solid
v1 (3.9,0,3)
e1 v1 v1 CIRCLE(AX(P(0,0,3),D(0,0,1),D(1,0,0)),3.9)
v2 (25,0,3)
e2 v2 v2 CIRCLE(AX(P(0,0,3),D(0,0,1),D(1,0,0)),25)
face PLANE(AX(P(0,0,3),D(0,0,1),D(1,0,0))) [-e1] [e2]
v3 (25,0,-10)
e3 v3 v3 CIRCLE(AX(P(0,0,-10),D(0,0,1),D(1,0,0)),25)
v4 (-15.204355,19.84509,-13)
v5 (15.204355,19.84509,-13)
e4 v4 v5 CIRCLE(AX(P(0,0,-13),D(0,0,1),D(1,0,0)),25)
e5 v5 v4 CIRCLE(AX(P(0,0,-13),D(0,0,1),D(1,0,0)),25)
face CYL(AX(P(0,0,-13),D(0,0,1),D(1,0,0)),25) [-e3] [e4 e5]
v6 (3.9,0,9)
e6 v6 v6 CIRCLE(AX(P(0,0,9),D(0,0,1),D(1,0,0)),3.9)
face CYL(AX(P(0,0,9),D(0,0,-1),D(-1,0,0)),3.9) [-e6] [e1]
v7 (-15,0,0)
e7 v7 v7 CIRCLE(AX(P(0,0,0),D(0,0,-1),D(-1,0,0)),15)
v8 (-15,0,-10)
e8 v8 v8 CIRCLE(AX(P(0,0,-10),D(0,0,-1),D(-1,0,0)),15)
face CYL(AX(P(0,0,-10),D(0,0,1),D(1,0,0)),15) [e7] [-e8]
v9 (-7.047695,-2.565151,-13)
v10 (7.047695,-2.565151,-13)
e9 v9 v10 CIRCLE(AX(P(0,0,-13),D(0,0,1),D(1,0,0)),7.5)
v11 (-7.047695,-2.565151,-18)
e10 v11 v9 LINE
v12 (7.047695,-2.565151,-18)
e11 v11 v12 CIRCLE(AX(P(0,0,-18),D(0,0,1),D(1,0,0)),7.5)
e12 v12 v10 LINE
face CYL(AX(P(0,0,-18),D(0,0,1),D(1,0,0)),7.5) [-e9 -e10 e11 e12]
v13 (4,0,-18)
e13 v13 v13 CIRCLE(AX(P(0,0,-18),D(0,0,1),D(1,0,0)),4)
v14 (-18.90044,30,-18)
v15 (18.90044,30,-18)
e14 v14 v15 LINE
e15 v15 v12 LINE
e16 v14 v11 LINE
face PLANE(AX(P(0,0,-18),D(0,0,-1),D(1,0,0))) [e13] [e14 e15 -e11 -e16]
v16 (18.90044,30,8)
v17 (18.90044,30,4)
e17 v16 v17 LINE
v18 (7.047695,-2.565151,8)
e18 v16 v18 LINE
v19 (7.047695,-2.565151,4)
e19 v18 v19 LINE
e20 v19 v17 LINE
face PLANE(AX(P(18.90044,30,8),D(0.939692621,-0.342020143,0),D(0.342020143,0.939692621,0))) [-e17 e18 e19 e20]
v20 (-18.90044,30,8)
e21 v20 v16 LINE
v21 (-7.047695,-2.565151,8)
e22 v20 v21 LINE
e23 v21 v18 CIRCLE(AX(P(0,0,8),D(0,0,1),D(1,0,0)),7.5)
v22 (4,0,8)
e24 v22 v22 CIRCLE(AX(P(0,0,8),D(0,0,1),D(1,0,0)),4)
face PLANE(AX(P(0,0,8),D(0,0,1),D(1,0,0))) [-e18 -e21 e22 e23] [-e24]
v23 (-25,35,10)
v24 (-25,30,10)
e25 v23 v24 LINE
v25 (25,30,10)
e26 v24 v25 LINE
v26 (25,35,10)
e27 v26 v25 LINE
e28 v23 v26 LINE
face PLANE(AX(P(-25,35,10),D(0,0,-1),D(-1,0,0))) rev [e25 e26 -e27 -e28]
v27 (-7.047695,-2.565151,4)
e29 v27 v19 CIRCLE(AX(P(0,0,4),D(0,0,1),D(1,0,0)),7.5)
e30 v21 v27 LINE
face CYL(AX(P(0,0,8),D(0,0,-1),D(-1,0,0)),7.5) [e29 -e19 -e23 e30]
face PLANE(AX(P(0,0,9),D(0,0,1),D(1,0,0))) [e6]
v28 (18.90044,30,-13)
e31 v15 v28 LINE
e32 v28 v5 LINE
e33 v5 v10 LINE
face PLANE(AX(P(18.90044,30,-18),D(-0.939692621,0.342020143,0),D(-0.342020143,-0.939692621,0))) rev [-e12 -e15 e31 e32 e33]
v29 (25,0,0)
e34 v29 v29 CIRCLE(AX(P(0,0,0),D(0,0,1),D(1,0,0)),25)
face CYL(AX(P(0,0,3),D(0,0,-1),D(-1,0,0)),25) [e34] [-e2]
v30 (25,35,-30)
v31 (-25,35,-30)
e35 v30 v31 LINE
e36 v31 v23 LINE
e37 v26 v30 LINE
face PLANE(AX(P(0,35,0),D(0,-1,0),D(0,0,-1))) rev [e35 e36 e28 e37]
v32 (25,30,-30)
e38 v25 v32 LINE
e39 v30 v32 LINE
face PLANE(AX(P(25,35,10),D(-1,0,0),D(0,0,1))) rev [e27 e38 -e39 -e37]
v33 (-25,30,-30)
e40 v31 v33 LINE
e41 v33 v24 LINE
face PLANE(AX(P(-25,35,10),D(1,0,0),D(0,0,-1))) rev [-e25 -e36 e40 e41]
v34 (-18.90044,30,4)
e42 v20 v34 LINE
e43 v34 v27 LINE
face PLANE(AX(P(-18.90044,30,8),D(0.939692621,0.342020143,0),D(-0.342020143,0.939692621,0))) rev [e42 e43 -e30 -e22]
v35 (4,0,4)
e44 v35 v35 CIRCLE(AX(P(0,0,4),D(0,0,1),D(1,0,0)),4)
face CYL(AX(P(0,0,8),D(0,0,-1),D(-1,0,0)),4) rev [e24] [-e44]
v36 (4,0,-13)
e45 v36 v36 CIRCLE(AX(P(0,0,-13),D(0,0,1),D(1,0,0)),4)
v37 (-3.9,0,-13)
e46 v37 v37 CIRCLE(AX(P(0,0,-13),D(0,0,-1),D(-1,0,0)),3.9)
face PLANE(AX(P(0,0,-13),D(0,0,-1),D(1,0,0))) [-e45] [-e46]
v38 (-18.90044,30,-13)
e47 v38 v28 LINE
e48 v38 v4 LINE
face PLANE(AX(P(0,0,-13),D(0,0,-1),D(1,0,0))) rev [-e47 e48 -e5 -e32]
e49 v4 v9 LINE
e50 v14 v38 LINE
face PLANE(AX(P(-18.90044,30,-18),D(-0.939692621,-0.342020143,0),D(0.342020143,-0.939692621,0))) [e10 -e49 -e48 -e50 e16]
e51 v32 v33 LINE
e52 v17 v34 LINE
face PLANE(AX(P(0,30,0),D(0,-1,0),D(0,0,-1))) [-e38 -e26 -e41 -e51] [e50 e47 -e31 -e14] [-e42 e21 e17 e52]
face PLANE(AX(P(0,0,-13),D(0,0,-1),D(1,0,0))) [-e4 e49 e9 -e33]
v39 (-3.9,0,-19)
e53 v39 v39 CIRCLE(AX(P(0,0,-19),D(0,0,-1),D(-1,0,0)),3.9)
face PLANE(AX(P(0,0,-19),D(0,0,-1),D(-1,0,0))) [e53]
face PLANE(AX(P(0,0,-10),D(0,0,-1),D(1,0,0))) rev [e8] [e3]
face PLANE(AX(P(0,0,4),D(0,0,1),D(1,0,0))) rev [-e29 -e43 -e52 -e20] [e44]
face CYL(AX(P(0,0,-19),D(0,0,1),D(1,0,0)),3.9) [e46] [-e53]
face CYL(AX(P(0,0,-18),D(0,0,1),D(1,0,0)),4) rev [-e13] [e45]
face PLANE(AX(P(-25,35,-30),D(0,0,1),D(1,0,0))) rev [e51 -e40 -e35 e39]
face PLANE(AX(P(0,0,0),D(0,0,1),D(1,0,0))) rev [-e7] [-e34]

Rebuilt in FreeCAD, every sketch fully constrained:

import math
import FreeCAD as App
import Part
import Sketcher

V = App.Vector
Q = App.Units.Quantity


def add_polygon(sketch, points):
    """Adds a closed chain of lines whose ends are joined by coincident constraints."""
    first, n = sketch.GeometryCount, len(points)
    for a, b in zip(points, points[1:] + points[:1]):
        sketch.addGeometry(Part.LineSegment(App.Vector(*a, 0), App.Vector(*b, 0)), False)
    for i in range(n):
        sketch.addConstraint(Sketcher.Constraint("Coincident", first + i, 2, first + (i + 1) % n, 1))

doc = App.newDocument("Part")
body = doc.addObject("PartDesign::Body", "Body")

sketch1 = body.newObject("Sketcher::SketchObject", "Sketch")
sketch1.AttachmentSupport = (doc.getObject("XY_Plane"), [""])
sketch1.MapMode = "FlatFace"
sketch1.addGeometry(Part.Circle(V(0, 0, 0), V(0, 0, 1), 25), False)
sketch1.addConstraint([
    Sketcher.Constraint("Coincident", 0, 3, -1, 1),
    Sketcher.Constraint("Diameter", 0, 50.0),
])
pad1 = body.newObject("PartDesign::Pad", "Pad")
pad1.Profile = sketch1
pad1.Length = 3

sketch2 = body.newObject("Sketcher::SketchObject", "Sketch001")
sketch2.AttachmentSupport = (doc.getObject("XY_Plane"), [""])
sketch2.MapMode = "FlatFace"
sketch2.AttachmentOffset = App.Placement(V(0, 0, 3), App.Rotation())
sketch2.addGeometry([
    Part.LineSegment(V(-18.90044, 30, 0), V(-7.047695, -2.565151, 0)),
    Part.ArcOfCircle(Part.Circle(V(0, 0, 0), V(0, 0, 1), 7.5), math.radians(-160), math.radians(-20)),
    Part.LineSegment(V(7.047695, -2.565151, 0), V(18.90044, 30, 0)),
    Part.LineSegment(V(18.90044, 30, 0), V(-18.90044, 30, 0)),
    Part.Circle(V(0, 0, 0), V(0, 0, 1), 4),
], False)
sketch2.addConstraint([
    Sketcher.Constraint("Tangent", 0, 2, 1, 1),
    Sketcher.Constraint("Tangent", 1, 2, 2, 1),
    Sketcher.Constraint("Coincident", 2, 2, 3, 1),
    Sketcher.Constraint("Coincident", 3, 2, 0, 1),
    Sketcher.Constraint("Horizontal", 3),
    Sketcher.Constraint("Coincident", 1, 3, -1, 1),
    Sketcher.Constraint("Coincident", 4, 3, -1, 1),
    Sketcher.Constraint("Horizontal", 0, 2, 1, 2),
    Sketcher.Constraint("Diameter", 4, 8.0),
    Sketcher.Constraint("Radius", 1, 7.5),
    Sketcher.Constraint("Angle", 0, Q("-70 deg")),
    Sketcher.Constraint("DistanceY", -1, 1, 2, 2, 30.0),
])
pad2 = body.newObject("PartDesign::Pad", "Pad001")
pad2.Profile = sketch2
pad2.Length = 5

sketch3 = body.newObject("Sketcher::SketchObject", "Sketch002")
sketch3.AttachmentSupport = (doc.getObject("XY_Plane"), [""])
sketch3.MapMode = "FlatFace"
sketch3.AttachmentOffset = App.Placement(V(0, 0, 3), App.Rotation())
sketch3.addGeometry(Part.Circle(V(0, 0, 0), V(0, 0, 1), 3.9), False)
sketch3.addConstraint([
    Sketcher.Constraint("Coincident", 0, 3, -1, 1),
    Sketcher.Constraint("Diameter", 0, 7.8),
])
pad3 = body.newObject("PartDesign::Pad", "Pad002")
pad3.Profile = sketch3
pad3.Length = 6

sketch4 = body.newObject("Sketcher::SketchObject", "Sketch003")
sketch4.AttachmentSupport = (doc.getObject("XY_Plane"), [""])
sketch4.MapMode = "FlatFace"
sketch4.addGeometry(Part.Circle(V(0, 0, 0), V(0, 0, 1), 15), False)
sketch4.addConstraint([
    Sketcher.Constraint("Coincident", 0, 3, -1, 1),
    Sketcher.Constraint("Diameter", 0, 30.0),
])
pad4 = body.newObject("PartDesign::Pad", "Pad003")
pad4.Profile = sketch4
pad4.Length = 10
pad4.Reversed = True
doc.recompute()

datumplane = body.newObject("PartDesign::Plane", "DatumPlane")
datumplane.AttachmentSupport = (doc.getObject("XY_Plane"), [""])
datumplane.MapMode = "FlatFace"
datumplane.AttachmentOffset = App.Placement(V(0, 0, -5), App.Rotation())
mirrored = body.newObject("PartDesign::Mirrored", "Mirrored")
mirrored.Originals = [pad1, pad2]
mirrored.MirrorPlane = (datumplane, [""])
body.Tip = mirrored

sketch5 = body.newObject("Sketcher::SketchObject", "Sketch004")
sketch5.AttachmentSupport = (doc.getObject("XY_Plane"), [""])
sketch5.MapMode = "FlatFace"
sketch5.AttachmentOffset = App.Placement(V(0, 0, -19), App.Rotation())
sketch5.addGeometry(Part.Circle(V(0, 0, 0), V(0, 0, 1), 3.9), False)
sketch5.addConstraint([
    Sketcher.Constraint("Coincident", 0, 3, -1, 1),
    Sketcher.Constraint("Diameter", 0, 7.8),
])
pad5 = body.newObject("PartDesign::Pad", "Pad004")
pad5.Profile = sketch5
pad5.Length = 6

sketch6 = body.newObject("Sketcher::SketchObject", "Sketch005")
sketch6.AttachmentSupport = (doc.getObject("XZ_Plane"), [""])
sketch6.MapMode = "FlatFace"
sketch6.AttachmentOffset = App.Placement(V(0, 0, -30), App.Rotation())
add_polygon(sketch6, [(-25, -30), (-25, 10), (25, 10), (25, -30)])
sketch6.addConstraint([
    Sketcher.Constraint("Vertical", 0),
    Sketcher.Constraint("Horizontal", 1),
    Sketcher.Constraint("Vertical", 2),
    Sketcher.Constraint("Horizontal", 3),
    Sketcher.Constraint("DistanceX", 1, 1, 1, 2, 50.0),
    Sketcher.Constraint("DistanceY", 0, 1, 0, 2, 40.0),
    Sketcher.Constraint("DistanceX", 0, 2, -1, 1, 25.0),
    Sketcher.Constraint("DistanceY", -1, 1, 0, 2, 10.0),
])
pad6 = body.newObject("PartDesign::Pad", "Pad005")
pad6.Profile = sketch6
pad6.Length = 5
pad6.Reversed = True

sketch7 = body.newObject("Sketcher::SketchObject", "Sketch006")
sketch7.AttachmentSupport = (doc.getObject("XY_Plane"), [""])
sketch7.MapMode = "FlatFace"
sketch7.AttachmentOffset = App.Placement(V(0, 0, 3), App.Rotation())
sketch7.addGeometry([
    Part.LineSegment(V(-18.90044, 30, 0), V(-7.047695, -2.565151, 0)),
    Part.ArcOfCircle(Part.Circle(V(0, 0, 0), V(0, 0, 1), 7.5), math.radians(-160), math.radians(-20)),
    Part.LineSegment(V(7.047695, -2.565151, 0), V(18.90044, 30, 0)),
    Part.LineSegment(V(18.90044, 30, 0), V(-18.90044, 30, 0)),
    Part.Circle(V(0, 0, 0), V(0, 0, 1), 4),
], False)
sketch7.addConstraint([
    Sketcher.Constraint("Tangent", 0, 2, 1, 1),
    Sketcher.Constraint("Tangent", 1, 2, 2, 1),
    Sketcher.Constraint("Coincident", 2, 2, 3, 1),
    Sketcher.Constraint("Coincident", 3, 2, 0, 1),
    Sketcher.Constraint("Horizontal", 3),
    Sketcher.Constraint("Coincident", 1, 3, -1, 1),
    Sketcher.Constraint("Coincident", 4, 3, -1, 1),
    Sketcher.Constraint("Horizontal", 0, 2, 1, 2),
    Sketcher.Constraint("Diameter", 4, 8.0),
    Sketcher.Constraint("Radius", 1, 7.5),
    Sketcher.Constraint("Angle", 0, Q("-70 deg")),
    Sketcher.Constraint("DistanceY", -1, 1, 2, 2, 30.0),
])
pocket1 = body.newObject("PartDesign::Pocket", "Pocket")
pocket1.Profile = sketch7
pocket1.Length = 1
pocket1.Reversed = True

doc.recompute()
